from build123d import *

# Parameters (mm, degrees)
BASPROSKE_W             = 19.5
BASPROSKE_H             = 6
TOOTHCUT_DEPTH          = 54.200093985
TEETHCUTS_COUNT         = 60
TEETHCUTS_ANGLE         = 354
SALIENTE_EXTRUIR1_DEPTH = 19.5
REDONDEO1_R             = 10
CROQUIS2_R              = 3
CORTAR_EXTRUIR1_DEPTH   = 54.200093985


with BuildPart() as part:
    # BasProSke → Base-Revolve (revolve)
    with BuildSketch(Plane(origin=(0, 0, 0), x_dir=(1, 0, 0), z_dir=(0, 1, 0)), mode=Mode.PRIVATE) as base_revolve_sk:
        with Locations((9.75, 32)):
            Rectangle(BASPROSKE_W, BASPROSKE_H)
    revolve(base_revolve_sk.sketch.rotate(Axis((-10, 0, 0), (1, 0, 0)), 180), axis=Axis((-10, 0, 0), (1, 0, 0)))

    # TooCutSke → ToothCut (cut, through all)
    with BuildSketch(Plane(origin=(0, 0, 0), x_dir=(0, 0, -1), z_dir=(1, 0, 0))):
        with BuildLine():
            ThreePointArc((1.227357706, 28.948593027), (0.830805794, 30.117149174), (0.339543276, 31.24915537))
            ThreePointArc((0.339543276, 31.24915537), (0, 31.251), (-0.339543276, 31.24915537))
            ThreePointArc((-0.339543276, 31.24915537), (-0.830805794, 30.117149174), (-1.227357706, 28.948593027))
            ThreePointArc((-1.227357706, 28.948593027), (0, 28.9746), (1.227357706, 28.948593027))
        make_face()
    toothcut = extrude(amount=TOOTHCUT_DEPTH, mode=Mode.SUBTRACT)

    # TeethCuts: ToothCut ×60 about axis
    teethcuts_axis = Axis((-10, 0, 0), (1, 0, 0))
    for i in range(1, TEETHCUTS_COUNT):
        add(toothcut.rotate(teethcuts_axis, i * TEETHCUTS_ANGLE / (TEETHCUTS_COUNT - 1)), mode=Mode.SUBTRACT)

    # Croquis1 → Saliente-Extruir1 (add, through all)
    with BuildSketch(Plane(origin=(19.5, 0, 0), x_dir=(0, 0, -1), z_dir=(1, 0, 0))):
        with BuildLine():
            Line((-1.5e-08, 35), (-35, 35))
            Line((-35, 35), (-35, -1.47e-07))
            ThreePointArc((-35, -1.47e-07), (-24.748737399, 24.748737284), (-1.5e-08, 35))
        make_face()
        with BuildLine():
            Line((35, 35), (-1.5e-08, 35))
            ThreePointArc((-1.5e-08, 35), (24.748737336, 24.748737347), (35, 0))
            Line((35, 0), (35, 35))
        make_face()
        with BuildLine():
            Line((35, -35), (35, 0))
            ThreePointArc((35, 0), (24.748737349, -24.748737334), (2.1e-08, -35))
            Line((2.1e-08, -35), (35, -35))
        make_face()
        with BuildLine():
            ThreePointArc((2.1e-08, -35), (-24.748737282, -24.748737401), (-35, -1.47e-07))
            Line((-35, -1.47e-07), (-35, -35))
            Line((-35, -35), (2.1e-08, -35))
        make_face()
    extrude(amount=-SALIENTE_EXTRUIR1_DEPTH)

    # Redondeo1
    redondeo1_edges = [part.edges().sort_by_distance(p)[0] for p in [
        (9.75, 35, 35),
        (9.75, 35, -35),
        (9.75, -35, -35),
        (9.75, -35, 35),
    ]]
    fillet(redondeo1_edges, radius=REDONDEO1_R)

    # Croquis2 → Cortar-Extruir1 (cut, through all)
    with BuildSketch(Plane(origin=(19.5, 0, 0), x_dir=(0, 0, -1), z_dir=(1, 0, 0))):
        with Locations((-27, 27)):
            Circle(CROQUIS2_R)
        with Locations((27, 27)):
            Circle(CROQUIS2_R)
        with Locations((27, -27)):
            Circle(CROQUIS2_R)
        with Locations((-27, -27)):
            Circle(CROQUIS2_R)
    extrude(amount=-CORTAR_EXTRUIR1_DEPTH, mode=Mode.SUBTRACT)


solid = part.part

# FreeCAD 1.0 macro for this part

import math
import FreeCAD as App
import Part
import Sketcher


def edges_at(feature, points):
    """Names of the edges that pass closest to the given points."""
    edges = feature.Shape.Edges
    near = lambda p: min(range(len(edges)), key=lambda i: edges[i].distToShape(Part.Vertex(*p))[0])
    return sorted({f"Edge{near(p) + 1}" for p in points})

doc = App.newDocument("Part")
body = doc.addObject("PartDesign::Body", "Body")

# Sketch on XZ plane
sketch1 = body.newObject("Sketcher::SketchObject", "Sketch")
sketch1.AttachmentSupport = (doc.getObject("XZ_Plane"), [""])
sketch1.MapMode = "FlatFace"
sketch1.addGeometry(Part.LineSegment(App.Vector(0, -35, 0), App.Vector(0, -29, 0)), False)
sketch1.addGeometry(Part.LineSegment(App.Vector(0, -29, 0), App.Vector(20, -29, 0)), False)
sketch1.addGeometry(Part.LineSegment(App.Vector(20, -29, 0), App.Vector(20, -35, 0)), False)
sketch1.addGeometry(Part.LineSegment(App.Vector(20, -35, 0), App.Vector(0, -35, 0)), False)
sketch1.addConstraint(Sketcher.Constraint("Coincident", 0, 2, 1, 1))
sketch1.addConstraint(Sketcher.Constraint("Coincident", 1, 2, 2, 1))
sketch1.addConstraint(Sketcher.Constraint("Coincident", 2, 2, 3, 1))
sketch1.addConstraint(Sketcher.Constraint("Coincident", 3, 2, 0, 1))
sketch1.addConstraint(Sketcher.Constraint("Vertical", 0))
sketch1.addConstraint(Sketcher.Constraint("Horizontal", 1))
sketch1.addConstraint(Sketcher.Constraint("Vertical", 2))
sketch1.addConstraint(Sketcher.Constraint("Horizontal", 3))
sketch1.addConstraint(Sketcher.Constraint("PointOnObject", 0, 2, -2))
sketch1.addConstraint(Sketcher.Constraint("DistanceY", 0, 1, 0, 2, 6.0))
sketch1.addConstraint(Sketcher.Constraint("DistanceX", 1, 1, 1, 2, 19.5))
sketch1.addConstraint(Sketcher.Constraint("DistanceY", 0, 2, -1, 1, 29.0))
revolution = body.newObject("PartDesign::Revolution", "Revolution")
revolution.Profile = sketch1
revolution.ReferenceAxis = (sketch1, ["H_Axis"])
revolution.Angle = 360

# Sketch on YZ plane
sketch2 = body.newObject("Sketcher::SketchObject", "Sketch001")
sketch2.AttachmentSupport = (doc.getObject("YZ_Plane"), [""])
sketch2.MapMode = "FlatFace"
sketch2.addGeometry(Part.ArcOfCircle(Part.Circle(App.Vector(24.7, 13.2, 0), App.Vector(0, 0, 1), 15), math.radians(-73.61), math.radians(-64.18)), False)
sketch2.addGeometry(Part.ArcOfCircle(Part.Circle(App.Vector(0, 0, 0), App.Vector(0, 0, 1), 31.3), math.radians(-0.62), math.radians(0.62)), False)
sketch2.addGeometry(Part.ArcOfCircle(Part.Circle(App.Vector(24.7, -13.2, 0), App.Vector(0, 0, 1), 15), math.radians(64.18), math.radians(73.61)), False)
sketch2.addGeometry(Part.ArcOfCircle(Part.Circle(App.Vector(0, 0, 0), App.Vector(0, 0, 1), 29), math.radians(-2.43), math.radians(2.43)), False)
sketch2.addConstraint(Sketcher.Constraint("Coincident", 0, 2, 1, 1))
sketch2.addConstraint(Sketcher.Constraint("Coincident", 1, 2, 2, 1))
sketch2.addConstraint(Sketcher.Constraint("Coincident", 2, 2, 3, 2))
sketch2.addConstraint(Sketcher.Constraint("Coincident", 3, 1, 0, 1))
sketch2.addConstraint(Sketcher.Constraint("Coincident", 1, 3, -1, 1))
sketch2.addConstraint(Sketcher.Constraint("Coincident", 3, 3, -1, 1))
sketch2.addConstraint(Sketcher.Constraint("Equal", 0, 2))
sketch2.addConstraint(Sketcher.Constraint("Symmetric", 0, 3, 2, 3, -1))
sketch2.addConstraint(Sketcher.Constraint("Radius", 0, 15.0))
sketch2.addConstraint(Sketcher.Constraint("Radius", 3, 28.9746))
sketch2.addConstraint(Sketcher.Constraint("Radius", 1, 31.250993))
sketch2.addConstraint(Sketcher.Constraint("DistanceY", 0, 2, 2, 2, 1.566901))
sketch2.addConstraint(Sketcher.Constraint("DistanceX", -1, 1, 0, 3, 24.716661))
pocket1 = body.newObject("PartDesign::Pocket", "Pocket")
pocket1.Profile = sketch2
pocket1.Type = "ThroughAll"
pocket1.Reversed = True
doc.recompute()

polarpattern = body.newObject("PartDesign::PolarPattern", "PolarPattern")
polarpattern.Originals = [pocket1]
polarpattern.Axis = (doc.getObject("X_Axis"), [""])
polarpattern.Angle = 360
polarpattern.Occurrences = 60
body.Tip = polarpattern

# Sketch on YZ plane
sketch3 = body.newObject("Sketcher::SketchObject", "Sketch002")
sketch3.AttachmentSupport = (doc.getObject("YZ_Plane"), [""])
sketch3.MapMode = "FlatFace"
sketch3.AttachmentOffset = App.Placement(App.Vector(0, 0, 19.5), App.Rotation())
sketch3.addGeometry(Part.LineSegment(App.Vector(35, 0, 0), App.Vector(35, 35, 0)), False)
sketch3.addGeometry(Part.LineSegment(App.Vector(35, 35, 0), App.Vector(0, 35, 0)), False)
sketch3.addGeometry(Part.ArcOfCircle(Part.Circle(App.Vector(0, 0, 0), App.Vector(0, 0, 1), 35), math.radians(0), math.radians(90)), False)
sketch3.addGeometry(Part.LineSegment(App.Vector(35, -35, 0), App.Vector(35, 0, 0)), False)
sketch3.addGeometry(Part.ArcOfCircle(Part.Circle(App.Vector(0, 0, 0), App.Vector(0, 0, 1), 35), math.radians(-90), math.radians(0)), False)
sketch3.addGeometry(Part.LineSegment(App.Vector(0, -35, 0), App.Vector(35, -35, 0)), False)
sketch3.addGeometry(Part.LineSegment(App.Vector(-35, -35, 0), App.Vector(0, -35, 0)), False)
sketch3.addGeometry(Part.ArcOfCircle(Part.Circle(App.Vector(0, 0, 0), App.Vector(0, 0, 1), 35), math.radians(-180), math.radians(-90)), False)
sketch3.addGeometry(Part.LineSegment(App.Vector(-35, 0, 0), App.Vector(-35, -35, 0)), False)
sketch3.addGeometry(Part.ArcOfCircle(Part.Circle(App.Vector(0, 0, 0), App.Vector(0, 0, 1), 35), math.radians(90), math.radians(180)), False)
sketch3.addGeometry(Part.LineSegment(App.Vector(0, 35, 0), App.Vector(-35, 35, 0)), False)
sketch3.addGeometry(Part.LineSegment(App.Vector(-35, 35, 0), App.Vector(-35, 0, 0)), False)
sketch3.addConstraint(Sketcher.Constraint("Coincident", 0, 2, 1, 1))
sketch3.addConstraint(Sketcher.Constraint("Tangent", 1, 2, 2, 2))
sketch3.addConstraint(Sketcher.Constraint("Tangent", 2, 1, 0, 1))
sketch3.addConstraint(Sketcher.Constraint("Tangent", 3, 2, 4, 2))
sketch3.addConstraint(Sketcher.Constraint("Tangent", 4, 1, 5, 1))
sketch3.addConstraint(Sketcher.Constraint("Coincident", 5, 2, 3, 1))
sketch3.addConstraint(Sketcher.Constraint("Tangent", 6, 2, 7, 2))
sketch3.addConstraint(Sketcher.Constraint("Tangent", 7, 1, 8, 1))
sketch3.addConstraint(Sketcher.Constraint("Coincident", 8, 2, 6, 1))
sketch3.addConstraint(Sketcher.Constraint("Tangent", 9, 1, 10, 1))
sketch3.addConstraint(Sketcher.Constraint("Coincident", 10, 2, 11, 1))
sketch3.addConstraint(Sketcher.Constraint("Tangent", 11, 2, 9, 2))
sketch3.addConstraint(Sketcher.Constraint("Vertical", 0))
sketch3.addConstraint(Sketcher.Constraint("Horizontal", 1))
sketch3.addConstraint(Sketcher.Constraint("Vertical", 3))
sketch3.addConstraint(Sketcher.Constraint("Horizontal", 5))
sketch3.addConstraint(Sketcher.Constraint("Horizontal", 6))
sketch3.addConstraint(Sketcher.Constraint("Vertical", 8))
sketch3.addConstraint(Sketcher.Constraint("Horizontal", 10))
sketch3.addConstraint(Sketcher.Constraint("Vertical", 11))
sketch3.addConstraint(Sketcher.Constraint("Coincident", 2, 3, -1, 1))
sketch3.addConstraint(Sketcher.Constraint("Coincident", 4, 3, -1, 1))
sketch3.addConstraint(Sketcher.Constraint("Coincident", 7, 3, -1, 1))
sketch3.addConstraint(Sketcher.Constraint("Coincident", 9, 3, -1, 1))
sketch3.addConstraint(Sketcher.Constraint("Equal", 2, 4))
sketch3.addConstraint(Sketcher.Constraint("Equal", 4, 7))
sketch3.addConstraint(Sketcher.Constraint("Equal", 7, 9))
sketch3.addConstraint(Sketcher.Constraint("Radius", 2, 35.0))
pad1 = body.newObject("PartDesign::Pad", "Pad")
pad1.Profile = sketch3
pad1.Length = 19.5
pad1.Reversed = True
doc.recompute()

fillet = body.newObject("PartDesign::Fillet", "Fillet")
fillet.Base = (pad1, edges_at(pad1, [
    (9.75, 35, 35),
    (9.75, 35, -35),
    (9.75, -35, -35),
    (9.75, -35, 35),
]))
fillet.Radius = 10

# Sketch on YZ plane
sketch4 = body.newObject("Sketcher::SketchObject", "Sketch003")
sketch4.AttachmentSupport = (doc.getObject("YZ_Plane"), [""])
sketch4.MapMode = "FlatFace"
sketch4.AttachmentOffset = App.Placement(App.Vector(0, 0, 19.5), App.Rotation())
sketch4.addGeometry(Part.Circle(App.Vector(27, 27, 0), App.Vector(0, 0, 1), 3), False)
sketch4.addGeometry(Part.Circle(App.Vector(27, -27, 0), App.Vector(0, 0, 1), 3), False)
sketch4.addGeometry(Part.Circle(App.Vector(-27, -27, 0), App.Vector(0, 0, 1), 3), False)
sketch4.addGeometry(Part.Circle(App.Vector(-27, 27, 0), App.Vector(0, 0, 1), 3), False)
sketch4.addConstraint(Sketcher.Constraint("Equal", 0, 1))
sketch4.addConstraint(Sketcher.Constraint("Equal", 1, 2))
sketch4.addConstraint(Sketcher.Constraint("Equal", 2, 3))
sketch4.addConstraint(Sketcher.Constraint("Symmetric", 0, 3, 2, 3, -1, 1))
sketch4.addConstraint(Sketcher.Constraint("Symmetric", 1, 3, 3, 3, -1, 1))
sketch4.addConstraint(Sketcher.Constraint("Symmetric", 1, 3, 2, 3, -2))
sketch4.addConstraint(Sketcher.Constraint("Diameter", 0, 6.0))
sketch4.addConstraint(Sketcher.Constraint("DistanceX", -1, 1, 0, 3, 27.0))
sketch4.addConstraint(Sketcher.Constraint("DistanceY", -1, 1, 0, 3, 27.0))
pocket2 = body.newObject("PartDesign::Pocket", "Pocket001")
pocket2.Profile = sketch4
pocket2.Type = "ThroughAll"

doc.recompute()
